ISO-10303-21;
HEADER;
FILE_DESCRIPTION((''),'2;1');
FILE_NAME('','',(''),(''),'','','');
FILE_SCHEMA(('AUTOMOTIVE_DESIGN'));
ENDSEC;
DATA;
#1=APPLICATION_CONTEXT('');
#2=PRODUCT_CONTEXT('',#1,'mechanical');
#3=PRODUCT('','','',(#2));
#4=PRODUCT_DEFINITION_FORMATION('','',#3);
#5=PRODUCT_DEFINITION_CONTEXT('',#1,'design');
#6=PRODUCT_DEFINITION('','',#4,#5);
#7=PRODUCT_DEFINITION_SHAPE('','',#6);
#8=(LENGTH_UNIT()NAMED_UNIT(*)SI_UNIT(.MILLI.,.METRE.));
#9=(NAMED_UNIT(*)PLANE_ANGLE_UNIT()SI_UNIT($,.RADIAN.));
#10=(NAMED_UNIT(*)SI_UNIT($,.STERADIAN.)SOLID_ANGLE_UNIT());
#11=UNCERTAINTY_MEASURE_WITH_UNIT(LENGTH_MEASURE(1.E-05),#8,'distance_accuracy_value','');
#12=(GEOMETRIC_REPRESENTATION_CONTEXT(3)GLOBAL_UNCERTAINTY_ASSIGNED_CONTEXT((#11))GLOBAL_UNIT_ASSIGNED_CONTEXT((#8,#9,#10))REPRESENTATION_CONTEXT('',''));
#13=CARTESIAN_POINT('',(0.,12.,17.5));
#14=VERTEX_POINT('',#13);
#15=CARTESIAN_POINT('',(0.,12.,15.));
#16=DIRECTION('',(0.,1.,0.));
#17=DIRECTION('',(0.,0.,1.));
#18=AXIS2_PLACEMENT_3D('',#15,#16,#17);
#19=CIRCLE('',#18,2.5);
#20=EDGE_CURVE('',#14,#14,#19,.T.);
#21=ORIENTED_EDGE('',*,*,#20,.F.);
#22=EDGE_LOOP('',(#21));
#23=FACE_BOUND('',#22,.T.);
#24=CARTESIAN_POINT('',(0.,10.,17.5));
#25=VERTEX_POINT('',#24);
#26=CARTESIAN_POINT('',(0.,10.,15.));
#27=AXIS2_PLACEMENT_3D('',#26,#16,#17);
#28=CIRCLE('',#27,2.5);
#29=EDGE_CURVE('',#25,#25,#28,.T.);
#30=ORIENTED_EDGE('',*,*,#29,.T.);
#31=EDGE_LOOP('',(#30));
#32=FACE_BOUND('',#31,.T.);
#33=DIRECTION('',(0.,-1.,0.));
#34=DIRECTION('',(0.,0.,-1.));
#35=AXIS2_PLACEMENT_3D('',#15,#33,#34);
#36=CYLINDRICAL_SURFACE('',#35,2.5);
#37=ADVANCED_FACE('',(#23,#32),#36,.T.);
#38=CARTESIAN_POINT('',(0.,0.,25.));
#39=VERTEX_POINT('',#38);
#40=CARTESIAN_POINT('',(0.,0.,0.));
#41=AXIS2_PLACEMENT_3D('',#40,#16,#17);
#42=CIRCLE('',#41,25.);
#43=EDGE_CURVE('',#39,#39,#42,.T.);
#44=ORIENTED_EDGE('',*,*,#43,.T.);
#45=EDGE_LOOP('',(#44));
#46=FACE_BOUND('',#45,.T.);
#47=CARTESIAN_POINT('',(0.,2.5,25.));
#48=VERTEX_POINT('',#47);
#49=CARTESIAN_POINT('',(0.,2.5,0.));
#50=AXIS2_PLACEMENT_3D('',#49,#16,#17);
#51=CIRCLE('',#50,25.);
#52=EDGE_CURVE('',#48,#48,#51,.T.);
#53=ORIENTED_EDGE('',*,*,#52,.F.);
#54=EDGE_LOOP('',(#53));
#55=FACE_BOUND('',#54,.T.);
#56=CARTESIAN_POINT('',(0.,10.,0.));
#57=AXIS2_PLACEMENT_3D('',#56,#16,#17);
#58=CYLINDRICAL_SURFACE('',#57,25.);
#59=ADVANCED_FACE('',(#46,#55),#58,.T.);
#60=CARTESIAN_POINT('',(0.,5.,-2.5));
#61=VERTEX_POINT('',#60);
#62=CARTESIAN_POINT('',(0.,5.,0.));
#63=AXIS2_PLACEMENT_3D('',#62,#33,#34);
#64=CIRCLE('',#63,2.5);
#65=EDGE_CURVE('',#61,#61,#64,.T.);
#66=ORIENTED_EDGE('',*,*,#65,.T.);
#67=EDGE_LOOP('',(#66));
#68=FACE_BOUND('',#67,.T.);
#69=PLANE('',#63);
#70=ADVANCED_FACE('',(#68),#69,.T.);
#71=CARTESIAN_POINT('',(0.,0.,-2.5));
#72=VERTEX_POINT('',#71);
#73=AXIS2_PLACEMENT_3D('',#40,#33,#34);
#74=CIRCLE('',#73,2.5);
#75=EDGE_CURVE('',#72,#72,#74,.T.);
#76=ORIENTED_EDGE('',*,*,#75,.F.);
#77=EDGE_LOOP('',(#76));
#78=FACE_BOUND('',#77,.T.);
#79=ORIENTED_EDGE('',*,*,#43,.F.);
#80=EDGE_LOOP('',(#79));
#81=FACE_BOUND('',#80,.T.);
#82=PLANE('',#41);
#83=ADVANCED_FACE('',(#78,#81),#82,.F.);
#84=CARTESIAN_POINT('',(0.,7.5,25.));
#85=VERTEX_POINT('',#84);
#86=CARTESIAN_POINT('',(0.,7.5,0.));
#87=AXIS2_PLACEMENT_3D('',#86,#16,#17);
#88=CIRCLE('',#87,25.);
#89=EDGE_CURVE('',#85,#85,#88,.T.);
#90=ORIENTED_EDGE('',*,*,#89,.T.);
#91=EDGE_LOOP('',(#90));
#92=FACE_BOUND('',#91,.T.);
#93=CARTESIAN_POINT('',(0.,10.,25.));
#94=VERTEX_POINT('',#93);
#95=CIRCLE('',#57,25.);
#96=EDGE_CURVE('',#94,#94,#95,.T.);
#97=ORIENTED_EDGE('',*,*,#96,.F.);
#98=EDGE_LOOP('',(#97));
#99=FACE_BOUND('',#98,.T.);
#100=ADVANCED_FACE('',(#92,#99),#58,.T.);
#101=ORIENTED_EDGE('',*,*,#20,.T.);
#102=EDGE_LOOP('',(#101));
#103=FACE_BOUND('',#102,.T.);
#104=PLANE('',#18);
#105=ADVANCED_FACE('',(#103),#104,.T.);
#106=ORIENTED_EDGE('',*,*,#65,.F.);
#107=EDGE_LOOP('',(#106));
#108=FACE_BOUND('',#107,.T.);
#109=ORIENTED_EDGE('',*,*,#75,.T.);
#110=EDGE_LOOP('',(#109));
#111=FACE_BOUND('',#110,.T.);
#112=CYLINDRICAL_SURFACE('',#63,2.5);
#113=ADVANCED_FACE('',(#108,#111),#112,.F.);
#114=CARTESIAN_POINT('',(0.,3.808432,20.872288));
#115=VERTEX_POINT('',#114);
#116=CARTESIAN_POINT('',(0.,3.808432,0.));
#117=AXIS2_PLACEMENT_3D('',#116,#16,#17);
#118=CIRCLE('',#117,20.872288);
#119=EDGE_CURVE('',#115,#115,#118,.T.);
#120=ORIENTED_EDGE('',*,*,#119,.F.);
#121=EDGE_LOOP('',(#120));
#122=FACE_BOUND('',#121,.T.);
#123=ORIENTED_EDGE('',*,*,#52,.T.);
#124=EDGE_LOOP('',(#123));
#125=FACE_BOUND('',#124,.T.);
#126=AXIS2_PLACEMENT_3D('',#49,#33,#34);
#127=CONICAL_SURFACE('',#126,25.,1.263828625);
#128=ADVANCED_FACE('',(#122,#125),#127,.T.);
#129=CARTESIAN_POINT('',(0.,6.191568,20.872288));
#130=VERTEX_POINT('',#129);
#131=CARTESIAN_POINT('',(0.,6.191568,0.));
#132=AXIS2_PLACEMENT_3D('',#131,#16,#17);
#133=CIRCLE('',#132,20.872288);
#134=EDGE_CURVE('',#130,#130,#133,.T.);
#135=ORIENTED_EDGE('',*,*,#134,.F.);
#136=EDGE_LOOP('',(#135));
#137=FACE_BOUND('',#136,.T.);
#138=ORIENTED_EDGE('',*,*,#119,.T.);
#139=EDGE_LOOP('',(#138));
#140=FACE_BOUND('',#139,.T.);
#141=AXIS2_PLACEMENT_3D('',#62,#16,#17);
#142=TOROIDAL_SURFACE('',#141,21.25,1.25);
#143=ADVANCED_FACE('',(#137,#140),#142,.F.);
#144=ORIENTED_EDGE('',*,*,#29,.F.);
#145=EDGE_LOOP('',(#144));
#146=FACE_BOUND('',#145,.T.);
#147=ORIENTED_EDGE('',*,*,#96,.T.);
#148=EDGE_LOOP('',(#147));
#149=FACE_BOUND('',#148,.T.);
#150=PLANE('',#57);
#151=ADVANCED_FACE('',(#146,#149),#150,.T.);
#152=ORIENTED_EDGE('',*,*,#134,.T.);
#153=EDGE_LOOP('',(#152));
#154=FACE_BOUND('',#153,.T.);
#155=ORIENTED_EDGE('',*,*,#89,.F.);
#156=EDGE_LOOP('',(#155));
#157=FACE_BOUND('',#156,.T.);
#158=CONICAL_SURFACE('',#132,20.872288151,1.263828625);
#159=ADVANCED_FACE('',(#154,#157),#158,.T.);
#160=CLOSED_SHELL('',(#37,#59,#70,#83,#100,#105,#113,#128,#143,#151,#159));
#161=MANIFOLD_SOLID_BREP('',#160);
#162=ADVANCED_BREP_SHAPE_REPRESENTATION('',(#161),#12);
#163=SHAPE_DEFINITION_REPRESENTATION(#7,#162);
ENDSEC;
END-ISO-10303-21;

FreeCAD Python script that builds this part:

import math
import FreeCAD as App
import Part
import Sketcher

V = App.Vector
Q = App.Units.Quantity

doc = App.newDocument("Part")
params = doc.addObject("Spreadsheet::Sheet", "Params")
for row, (alias, value) in enumerate([
    ("sketch1_diameter", "40 mm"),
    ("pad1_length", "10 mm"),
    ("sketch2_width", "10 mm"),
    ("sketch2_radius", "1.25 mm"),
    ("sketch2_width2", "2.5 mm"),
    ("sketch2_height", "5.75 mm"),
    ("revolution_angle", "360 deg"),
    ("sketch3_diameter", "5 mm"),
    ("pocket1_length", "5 mm"),
    ("sketch4_diameter", "5 mm"),
    ("pad2_length", "2 mm"),
], start=1):
    params.set(f"A{row}", alias)
    params.set(f"B{row}", "=" + value)
    params.setAlias(f"B{row}", alias)

body = doc.addObject("PartDesign::Body", "Body")

sketch1 = body.newObject("Sketcher::SketchObject", "Sketch")
sketch1.AttachmentSupport = (doc.getObject("XZ_Plane"), [""])
sketch1.MapMode = "FlatFace"
sketch1.addGeometry(Part.Circle(V(0, 0, 0), V(0, 0, 1), 20), False)
sketch1.addConstraint([
    Sketcher.Constraint("Coincident", 0, 3, -1, 1),
    Sketcher.Constraint("Diameter", 0, Q("40 mm")),
])
sketch1.setExpression("Constraints[1]", "Params.sketch1_diameter")
pad1 = body.newObject("PartDesign::Pad", "Pad")
pad1.Profile = sketch1
pad1.setExpression("Length", "Params.pad1_length")
pad1.Reversed = True

sketch2 = body.newObject("Sketcher::SketchObject", "Sketch001")
sketch2.AttachmentSupport = (doc.getObject("YZ_Plane"), [""])
sketch2.MapMode = "FlatFace"
sketch2.addGeometry([
    Part.LineSegment(V(7.5, -25, 0), V(10, -25, 0)),
    Part.LineSegment(V(10, -25, 0), V(10, -19.25, 0)),
    Part.LineSegment(V(10, -19.25, 0), V(0, -19.25, 0)),
    Part.LineSegment(V(0, -19.25, 0), V(0, -25, 0)),
    Part.LineSegment(V(0, -25, 0), V(2.5, -25, 0)),
    Part.LineSegment(V(2.5, -25, 0), V(3.808432, -20.872288, 0)),
    Part.ArcOfCircle(Part.Circle(V(5, -21.25, 0), V(0, 0, 1), 1.25), math.radians(17.587954), math.radians(162.412046)),
    Part.LineSegment(V(6.191568, -20.872288, 0), V(7.5, -25, 0)),
], False)
sketch2.addConstraint([
    Sketcher.Constraint("Coincident", 0, 2, 1, 1),
    Sketcher.Constraint("Coincident", 1, 2, 2, 1),
    Sketcher.Constraint("Coincident", 2, 2, 3, 1),
    Sketcher.Constraint("Coincident", 3, 2, 4, 1),
    Sketcher.Constraint("Coincident", 4, 2, 5, 1),
    Sketcher.Constraint("Tangent", 5, 2, 6, 2),
    Sketcher.Constraint("Tangent", 6, 1, 7, 1),
    Sketcher.Constraint("Coincident", 7, 2, 0, 1),
    Sketcher.Constraint("Horizontal", 0),
    Sketcher.Constraint("Vertical", 1),
    Sketcher.Constraint("Horizontal", 2),
    Sketcher.Constraint("Vertical", 3),
    Sketcher.Constraint("Horizontal", 4),
    Sketcher.Constraint("PointOnObject", 2, 2, -2),
    Sketcher.Constraint("Horizontal", 0, 2, 3, 2),
    Sketcher.Constraint("Horizontal", 5, 2, 6, 1),
    Sketcher.Constraint("Equal", 0, 4),
    Sketcher.Constraint("DistanceX", 2, 2, 2, 1, Q("10 mm")),
    Sketcher.Constraint("Radius", 6, Q("1.25 mm")),
    Sketcher.Constraint("DistanceX", 0, 1, 0, 2, Q("2.5 mm")),
    Sketcher.Constraint("DistanceY", 0, 2, -1, 1, Q("25 mm")),
    Sketcher.Constraint("DistanceY", 6, 3, 1, 2, Q("2 mm")),
    Sketcher.Constraint("DistanceY", 1, 1, 1, 2, Q("5.75 mm")),
])
sketch2.setExpression("Constraints[17]", "Params.sketch2_width")
sketch2.setExpression("Constraints[18]", "Params.sketch2_radius")
sketch2.setExpression("Constraints[19]", "Params.sketch2_width2")
sketch2.setExpression("Constraints[22]", "Params.sketch2_height")
revolution = body.newObject("PartDesign::Revolution", "Revolution")
revolution.Profile = sketch2
revolution.ReferenceAxis = (sketch2, ["H_Axis"])
revolution.setExpression("Angle", "Params.revolution_angle")

sketch3 = body.newObject("Sketcher::SketchObject", "Sketch002")
sketch3.AttachmentSupport = (doc.getObject("XZ_Plane"), [""])
sketch3.MapMode = "FlatFace"
sketch3.addGeometry(Part.Circle(V(0, 0, 0), V(0, 0, 1), 2.5), False)
sketch3.addConstraint([
    Sketcher.Constraint("Coincident", 0, 3, -1, 1),
    Sketcher.Constraint("Diameter", 0, Q("5 mm")),
])
sketch3.setExpression("Constraints[1]", "Params.sketch3_diameter")
pocket1 = body.newObject("PartDesign::Pocket", "Pocket")
pocket1.Profile = sketch3
pocket1.setExpression("Length", "Params.pocket1_length")

sketch4 = body.newObject("Sketcher::SketchObject", "Sketch003")
sketch4.AttachmentSupport = (doc.getObject("XZ_Plane"), [""])
sketch4.MapMode = "FlatFace"
sketch4.AttachmentOffset = App.Placement(V(0, 0, -10), App.Rotation())
sketch4.addGeometry(Part.Circle(V(0, 15, 0), V(0, 0, 1), 2.5), False)
sketch4.addConstraint([
    Sketcher.Constraint("PointOnObject", 0, 3, -2),
    Sketcher.Constraint("Diameter", 0, Q("5 mm")),
    Sketcher.Constraint("DistanceY", -1, 1, 0, 3, Q("15 mm")),
])
sketch4.setExpression("Constraints[1]", "Params.sketch4_diameter")
pad2 = body.newObject("PartDesign::Pad", "Pad001")
pad2.Profile = sketch4
pad2.setExpression("Length", "Params.pad2_length")
pad2.Reversed = True

doc.recompute()
